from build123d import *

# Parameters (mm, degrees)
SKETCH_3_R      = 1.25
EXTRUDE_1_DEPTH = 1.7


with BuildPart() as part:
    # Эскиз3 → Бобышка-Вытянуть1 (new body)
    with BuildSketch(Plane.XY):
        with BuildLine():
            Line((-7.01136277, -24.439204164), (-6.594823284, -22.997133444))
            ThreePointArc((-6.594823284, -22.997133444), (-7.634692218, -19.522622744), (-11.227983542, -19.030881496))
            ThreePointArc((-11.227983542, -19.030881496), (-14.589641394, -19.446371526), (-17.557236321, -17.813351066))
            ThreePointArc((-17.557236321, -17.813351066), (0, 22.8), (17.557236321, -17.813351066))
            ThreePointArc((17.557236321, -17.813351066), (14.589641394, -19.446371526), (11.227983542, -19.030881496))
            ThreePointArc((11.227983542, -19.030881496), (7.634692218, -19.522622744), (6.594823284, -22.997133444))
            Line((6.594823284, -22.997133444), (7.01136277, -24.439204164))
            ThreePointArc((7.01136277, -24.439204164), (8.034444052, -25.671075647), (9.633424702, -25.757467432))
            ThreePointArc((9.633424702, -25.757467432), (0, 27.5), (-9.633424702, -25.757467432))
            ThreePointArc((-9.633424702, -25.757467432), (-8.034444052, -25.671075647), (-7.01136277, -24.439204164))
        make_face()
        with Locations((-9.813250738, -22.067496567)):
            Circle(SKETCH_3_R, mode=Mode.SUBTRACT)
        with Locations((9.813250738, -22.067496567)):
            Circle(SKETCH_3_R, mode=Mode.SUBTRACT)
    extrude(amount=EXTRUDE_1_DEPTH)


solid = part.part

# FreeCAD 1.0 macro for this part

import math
import FreeCAD as App
import Part
import Sketcher

V = App.Vector

doc = App.newDocument("Part")
body = doc.addObject("PartDesign::Body", "Body")

# Sketch on XY plane
sketch1 = body.newObject("Sketcher::SketchObject", "Sketch")
sketch1.AttachmentSupport = (doc.getObject("XY_Plane"), [""])
sketch1.MapMode = "FlatFace"
sketch1.addGeometry([
    Part.LineSegment(V(-7, -24.4, 0), V(-6.6, -23, 0)),  # 0
    Part.ArcOfCircle(Part.Circle(V(-9.8, -22.1, 0), V(0, 0, 1), 3.3), math.radians(-16), math.radians(115)),  # 1
    Part.ArcOfCircle(Part.Circle(V(-13.6, -14, 0), V(0, 0, 1), 5.5), math.radians(-137), math.radians(-65)),  # 2
    Part.ArcOfCircle(Part.Circle(V(0, -1.3, 0), V(0, 0, 1), 24.1), math.radians(-43), math.radians(223)),  # 3
    Part.ArcOfCircle(Part.Circle(V(13.6, -14, 0), V(0, 0, 1), 5.5), math.radians(-115), math.radians(-43)),  # 4
    Part.ArcOfCircle(Part.Circle(V(9.8, -22.1, 0), V(0, 0, 1), 3.3), math.radians(65), math.radians(196)),  # 5
    Part.LineSegment(V(6.6, -23, 0), V(7, -24.4, 0)),  # 6
    Part.ArcOfCircle(Part.Circle(V(8.9, -23.9, 0), V(0, 0, 1), 2), math.radians(-164), math.radians(-69)),  # 7
    Part.ArcOfCircle(Part.Circle(V(0, 0, 0), V(0, 0, 1), 27.5), math.radians(-69), math.radians(249)),  # 8
    Part.ArcOfCircle(Part.Circle(V(-8.9, -23.9, 0), V(0, 0, 1), 2), math.radians(-111), math.radians(-16)),  # 9
    Part.Circle(V(-9.8, -22.1, 0), V(0, 0, 1), 1.2),  # 10
    Part.Circle(V(9.8, -22.1, 0), V(0, 0, 1), 1.2),  # 11
], False)
sketch1.addConstraint([
    Sketcher.Constraint("Tangent", 0, 2, 1, 1),
    Sketcher.Constraint("Tangent", 1, 2, 2, 2),
    Sketcher.Constraint("Tangent", 2, 1, 3, 2),
    Sketcher.Constraint("Tangent", 3, 1, 4, 2),
    Sketcher.Constraint("Tangent", 4, 1, 5, 1),
    Sketcher.Constraint("Tangent", 5, 2, 6, 1),
    Sketcher.Constraint("Tangent", 6, 2, 7, 1),
    Sketcher.Constraint("Tangent", 7, 2, 8, 1),
    Sketcher.Constraint("Tangent", 8, 2, 9, 1),
    Sketcher.Constraint("Tangent", 9, 2, 0, 1),
    Sketcher.Constraint("Coincident", 8, 3, -1, 1),
    Sketcher.Constraint("Coincident", 10, 3, 1, 3),
    Sketcher.Constraint("Coincident", 11, 3, 5, 3),
    Sketcher.Constraint("Equal", 2, 4),
    Sketcher.Constraint("Equal", 1, 5),
    Sketcher.Constraint("Equal", 7, 9),
    Sketcher.Constraint("Equal", 10, 11),
    Sketcher.Constraint("Symmetric", 2, 3, 4, 3, -2),
    Sketcher.Constraint("Symmetric", 0, 2, 5, 2, -2),
    Sketcher.Constraint("Radius", 7, 2.0),
    Sketcher.Constraint("Diameter", 10, 2.5),
    Sketcher.Constraint("Radius", 2, 5.5),
    Sketcher.Constraint("Radius", 8, 27.5),
    Sketcher.Constraint("Radius", 1, 3.35),
    Sketcher.Constraint("Radius", 3, 24.10169),
    Sketcher.Constraint("DistanceX", 1, 3, 5, 3, 19.626501),
    Sketcher.Constraint("DistanceY", 7, 3, 5, 3, 1.816701),
    Sketcher.Constraint("DistanceX", 5, 2, 7, 2, 3.038601),
    Sketcher.Constraint("DistanceX", 2, 3, -1, 1, 13.550679),
])
pad1 = body.newObject("PartDesign::Pad", "Pad")
pad1.Profile = sketch1
pad1.Length = 1.7

doc.recompute()
